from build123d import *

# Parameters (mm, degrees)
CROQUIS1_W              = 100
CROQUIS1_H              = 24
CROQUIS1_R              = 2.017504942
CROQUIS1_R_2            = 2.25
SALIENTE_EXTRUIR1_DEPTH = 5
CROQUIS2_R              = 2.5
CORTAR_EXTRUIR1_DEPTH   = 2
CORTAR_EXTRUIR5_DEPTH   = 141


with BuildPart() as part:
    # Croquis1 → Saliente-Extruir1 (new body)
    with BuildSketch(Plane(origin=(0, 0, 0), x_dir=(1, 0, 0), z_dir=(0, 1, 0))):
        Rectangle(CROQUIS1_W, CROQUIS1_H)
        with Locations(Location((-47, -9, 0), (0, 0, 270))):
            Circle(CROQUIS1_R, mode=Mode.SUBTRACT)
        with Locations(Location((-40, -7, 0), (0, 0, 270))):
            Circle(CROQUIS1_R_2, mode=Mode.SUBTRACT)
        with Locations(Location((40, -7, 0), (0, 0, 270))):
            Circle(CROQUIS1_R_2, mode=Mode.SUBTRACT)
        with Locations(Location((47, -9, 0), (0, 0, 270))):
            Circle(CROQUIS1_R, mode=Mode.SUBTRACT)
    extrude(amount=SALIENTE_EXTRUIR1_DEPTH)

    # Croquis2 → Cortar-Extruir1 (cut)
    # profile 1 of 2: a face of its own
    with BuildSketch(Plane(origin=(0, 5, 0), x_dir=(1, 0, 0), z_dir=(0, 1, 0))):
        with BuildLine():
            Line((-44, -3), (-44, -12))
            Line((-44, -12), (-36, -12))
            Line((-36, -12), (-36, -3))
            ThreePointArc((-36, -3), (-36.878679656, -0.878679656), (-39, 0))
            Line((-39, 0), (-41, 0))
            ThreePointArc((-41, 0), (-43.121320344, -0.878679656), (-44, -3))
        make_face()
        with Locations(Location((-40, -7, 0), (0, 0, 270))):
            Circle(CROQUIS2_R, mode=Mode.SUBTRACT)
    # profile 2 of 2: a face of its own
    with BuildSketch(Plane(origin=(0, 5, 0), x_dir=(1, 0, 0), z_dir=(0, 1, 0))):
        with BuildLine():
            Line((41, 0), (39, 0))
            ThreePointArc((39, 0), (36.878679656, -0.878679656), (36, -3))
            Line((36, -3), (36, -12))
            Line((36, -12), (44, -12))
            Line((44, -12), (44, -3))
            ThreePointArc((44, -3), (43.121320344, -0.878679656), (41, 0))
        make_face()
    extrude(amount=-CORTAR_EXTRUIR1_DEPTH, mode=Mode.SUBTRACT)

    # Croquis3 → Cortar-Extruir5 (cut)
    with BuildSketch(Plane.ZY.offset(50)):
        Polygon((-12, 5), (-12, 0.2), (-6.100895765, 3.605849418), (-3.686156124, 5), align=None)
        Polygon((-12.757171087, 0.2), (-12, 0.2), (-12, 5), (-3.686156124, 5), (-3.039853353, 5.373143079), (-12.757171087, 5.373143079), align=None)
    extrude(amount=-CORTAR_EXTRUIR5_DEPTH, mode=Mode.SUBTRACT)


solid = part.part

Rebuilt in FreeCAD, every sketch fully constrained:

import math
import FreeCAD as App
import Part
import Sketcher

V = App.Vector
Q = App.Units.Quantity

doc = App.newDocument("Part")
body = doc.addObject("PartDesign::Body", "Body")

# Sketch on XZ plane
sketch1 = body.newObject("Sketcher::SketchObject", "Sketch")
sketch1.AttachmentSupport = (doc.getObject("XZ_Plane"), [""])
sketch1.MapMode = "FlatFace"
sketch1.addGeometry([
    Part.LineSegment(V(-50, -12, 0), V(-50, 12, 0)),  # 0
    Part.LineSegment(V(-50, 12, 0), V(50, 12, 0)),  # 1
    Part.LineSegment(V(50, 12, 0), V(50, -12, 0)),  # 2
    Part.LineSegment(V(50, -12, 0), V(-50, -12, 0)),  # 3
    Part.Circle(V(-47, 9, 0), V(0, 0, 1), 2),  # 4
    Part.Circle(V(47, 9, 0), V(0, 0, 1), 2),  # 5
    Part.Circle(V(-40, 7, 0), V(0, 0, 1), 2.2),  # 6
    Part.Circle(V(40, 7, 0), V(0, 0, 1), 2.2),  # 7
], False)
sketch1.addConstraint([
    Sketcher.Constraint("Coincident", 0, 2, 1, 1),
    Sketcher.Constraint("Coincident", 1, 2, 2, 1),
    Sketcher.Constraint("Coincident", 2, 2, 3, 1),
    Sketcher.Constraint("Coincident", 3, 2, 0, 1),
    Sketcher.Constraint("Vertical", 0),
    Sketcher.Constraint("Horizontal", 1),
    Sketcher.Constraint("Vertical", 2),
    Sketcher.Constraint("Horizontal", 3),
    Sketcher.Constraint("Equal", 4, 5),
    Sketcher.Constraint("Equal", 6, 7),
    Sketcher.Constraint("Symmetric", 0, 2, 2, 2, -1, 1),
    Sketcher.Constraint("Symmetric", 4, 3, 5, 3, -2),
    Sketcher.Constraint("Symmetric", 6, 3, 7, 3, -2),
    Sketcher.Constraint("Diameter", 6, Q("4.5 mm")),
    Sketcher.Constraint("DistanceX", 1, 1, 1, 2, Q("100 mm")),
    Sketcher.Constraint("DistanceY", 0, 1, 0, 2, Q("24 mm")),
    Sketcher.Constraint("DistanceX", 4, 3, -1, 1, Q("47 mm")),
    Sketcher.Constraint("DistanceY", -1, 1, 4, 3, Q("9 mm")),
    Sketcher.Constraint("DistanceX", 6, 3, -1, 1, Q("40 mm")),
    Sketcher.Constraint("DistanceY", -1, 1, 6, 3, Q("7 mm")),
    Sketcher.Constraint("Diameter", 4, Q("4.03501 mm")),
])
pad1 = body.newObject("PartDesign::Pad", "Pad")
pad1.Profile = sketch1
pad1.Length = 5
pad1.Reversed = True

# Sketch on XZ plane
sketch2 = body.newObject("Sketcher::SketchObject", "Sketch001")
sketch2.AttachmentSupport = (doc.getObject("XZ_Plane"), [""])
sketch2.MapMode = "FlatFace"
sketch2.AttachmentOffset = App.Placement(V(0, 0, -5), App.Rotation())
sketch2.addGeometry([
    Part.LineSegment(V(-44, 3, 0), V(-44, 12, 0)),  # 0
    Part.LineSegment(V(-44, 12, 0), V(-36, 12, 0)),  # 1
    Part.LineSegment(V(-36, 12, 0), V(-36, 3, 0)),  # 2
    Part.ArcOfCircle(Part.Circle(V(-39, 3, 0), V(0, 0, 1), 3), math.radians(-90), math.radians(0)),  # 3
    Part.LineSegment(V(-39, 0, 0), V(-41, 0, 0)),  # 4
    Part.ArcOfCircle(Part.Circle(V(-41, 3, 0), V(0, 0, 1), 3), math.radians(180), math.radians(270)),  # 5
    Part.Circle(V(-40, 7, 0), V(0, 0, 1), 2.5),  # 6
    Part.LineSegment(V(41, 0, 0), V(39, 0, 0)),  # 7
    Part.ArcOfCircle(Part.Circle(V(39, 3, 0), V(0, 0, 1), 3), math.radians(180), math.radians(270)),  # 8
    Part.LineSegment(V(36, 3, 0), V(36, 12, 0)),  # 9
    Part.LineSegment(V(36, 12, 0), V(44, 12, 0)),  # 10
    Part.LineSegment(V(44, 12, 0), V(44, 3, 0)),  # 11
    Part.ArcOfCircle(Part.Circle(V(41, 3, 0), V(0, 0, 1), 3), math.radians(-90), math.radians(0)),  # 12
], False)
sketch2.addConstraint([
    Sketcher.Constraint("Coincident", 0, 2, 1, 1),
    Sketcher.Constraint("Coincident", 1, 2, 2, 1),
    Sketcher.Constraint("Tangent", 2, 2, 3, 2),
    Sketcher.Constraint("Tangent", 3, 1, 4, 1),
    Sketcher.Constraint("Tangent", 4, 2, 5, 2),
    Sketcher.Constraint("Tangent", 5, 1, 0, 1),
    Sketcher.Constraint("Tangent", 7, 2, 8, 2),
    Sketcher.Constraint("Tangent", 8, 1, 9, 1),
    Sketcher.Constraint("Coincident", 9, 2, 10, 1),
    Sketcher.Constraint("Coincident", 10, 2, 11, 1),
    Sketcher.Constraint("Tangent", 11, 2, 12, 2),
    Sketcher.Constraint("Tangent", 12, 1, 7, 1),
    Sketcher.Constraint("Vertical", 0),
    Sketcher.Constraint("Horizontal", 1),
    Sketcher.Constraint("Vertical", 2),
    Sketcher.Constraint("Horizontal", 4),
    Sketcher.Constraint("Horizontal", 7),
    Sketcher.Constraint("Vertical", 9),
    Sketcher.Constraint("Horizontal", 10),
    Sketcher.Constraint("Vertical", 11),
    Sketcher.Constraint("Equal", 3, 5),
    Sketcher.Constraint("Equal", 5, 8),
    Sketcher.Constraint("Equal", 8, 12),
    Sketcher.Constraint("Symmetric", 3, 1, 7, 2, -1, 1),
    Sketcher.Constraint("Symmetric", 5, 3, 12, 3, -2),
    Sketcher.Constraint("Horizontal", 1, 2, 9, 2),
    Sketcher.Constraint("Diameter", 6, Q("5 mm")),
    Sketcher.Constraint("Radius", 3, Q("3 mm")),
    Sketcher.Constraint("DistanceX", 1, 1, 1, 2, Q("8 mm")),
    Sketcher.Constraint("DistanceY", 0, 1, 0, 2, Q("9 mm")),
    Sketcher.Constraint("DistanceX", 3, 3, -1, 1, Q("39 mm")),
    Sketcher.Constraint("DistanceX", 6, 3, -1, 1, Q("40 mm")),
    Sketcher.Constraint("DistanceY", -1, 1, 6, 3, Q("7 mm")),
])
pocket1 = body.newObject("PartDesign::Pocket", "Pocket")
pocket1.Profile = sketch2
pocket1.Length = 2
pocket1.Reversed = True

# Sketch on YZ plane
sketch3 = body.newObject("Sketcher::SketchObject", "Sketch002")
sketch3.AttachmentSupport = (doc.getObject("YZ_Plane"), [""])
sketch3.MapMode = "FlatFace"
sketch3.AttachmentOffset = App.Placement(V(0, 0, -50), App.Rotation())
sketch3.addGeometry([
    Part.LineSegment(V(0.2, -12, 0), V(3.6, -6.1, 0)),  # 0
    Part.LineSegment(V(3.6, -6.1, 0), V(5, -3.7, 0)),  # 1
    Part.LineSegment(V(5, -3.7, 0), V(5.4, -3, 0)),  # 2
    Part.LineSegment(V(5.4, -3, 0), V(5.4, -12.8, 0)),  # 3
    Part.LineSegment(V(5.4, -12.8, 0), V(0.2, -12.8, 0)),  # 4
    Part.LineSegment(V(0.2, -12.8, 0), V(0.2, -12, 0)),  # 5
], False)
sketch3.addConstraint([
    Sketcher.Constraint("Coincident", 0, 2, 1, 1),
    Sketcher.Constraint("Coincident", 1, 2, 2, 1),
    Sketcher.Constraint("Coincident", 2, 2, 3, 1),
    Sketcher.Constraint("Coincident", 3, 2, 4, 1),
    Sketcher.Constraint("Coincident", 4, 2, 5, 1),
    Sketcher.Constraint("Coincident", 5, 2, 0, 1),
    Sketcher.Constraint("Vertical", 3),
    Sketcher.Constraint("Horizontal", 4),
    Sketcher.Constraint("Vertical", 5),
    Sketcher.Constraint("Parallel", 0, 1),
    Sketcher.Constraint("Parallel", 1, 2),
    Sketcher.Constraint("Angle", 0, Q("60 deg")),
    Sketcher.Constraint("DistanceX", -1, 1, 1, 2, Q("5 mm")),
    Sketcher.Constraint("DistanceY", 5, 2, -1, 1, Q("12 mm")),
    Sketcher.Constraint("DistanceX", -1, 1, 4, 2, Q("0.2 mm")),
    Sketcher.Constraint("Distance", 0, Q("6.811699 mm")),
    Sketcher.Constraint("DistanceY", 5, 1, 5, 2, Q("0.757171 mm")),
    Sketcher.Constraint("DistanceX", 4, 2, 4, 1, Q("5.173143 mm")),
])
pocket2 = body.newObject("PartDesign::Pocket", "Pocket001")
pocket2.Profile = sketch3
pocket2.Length = 141
pocket2.Reversed = True

doc.recompute()
